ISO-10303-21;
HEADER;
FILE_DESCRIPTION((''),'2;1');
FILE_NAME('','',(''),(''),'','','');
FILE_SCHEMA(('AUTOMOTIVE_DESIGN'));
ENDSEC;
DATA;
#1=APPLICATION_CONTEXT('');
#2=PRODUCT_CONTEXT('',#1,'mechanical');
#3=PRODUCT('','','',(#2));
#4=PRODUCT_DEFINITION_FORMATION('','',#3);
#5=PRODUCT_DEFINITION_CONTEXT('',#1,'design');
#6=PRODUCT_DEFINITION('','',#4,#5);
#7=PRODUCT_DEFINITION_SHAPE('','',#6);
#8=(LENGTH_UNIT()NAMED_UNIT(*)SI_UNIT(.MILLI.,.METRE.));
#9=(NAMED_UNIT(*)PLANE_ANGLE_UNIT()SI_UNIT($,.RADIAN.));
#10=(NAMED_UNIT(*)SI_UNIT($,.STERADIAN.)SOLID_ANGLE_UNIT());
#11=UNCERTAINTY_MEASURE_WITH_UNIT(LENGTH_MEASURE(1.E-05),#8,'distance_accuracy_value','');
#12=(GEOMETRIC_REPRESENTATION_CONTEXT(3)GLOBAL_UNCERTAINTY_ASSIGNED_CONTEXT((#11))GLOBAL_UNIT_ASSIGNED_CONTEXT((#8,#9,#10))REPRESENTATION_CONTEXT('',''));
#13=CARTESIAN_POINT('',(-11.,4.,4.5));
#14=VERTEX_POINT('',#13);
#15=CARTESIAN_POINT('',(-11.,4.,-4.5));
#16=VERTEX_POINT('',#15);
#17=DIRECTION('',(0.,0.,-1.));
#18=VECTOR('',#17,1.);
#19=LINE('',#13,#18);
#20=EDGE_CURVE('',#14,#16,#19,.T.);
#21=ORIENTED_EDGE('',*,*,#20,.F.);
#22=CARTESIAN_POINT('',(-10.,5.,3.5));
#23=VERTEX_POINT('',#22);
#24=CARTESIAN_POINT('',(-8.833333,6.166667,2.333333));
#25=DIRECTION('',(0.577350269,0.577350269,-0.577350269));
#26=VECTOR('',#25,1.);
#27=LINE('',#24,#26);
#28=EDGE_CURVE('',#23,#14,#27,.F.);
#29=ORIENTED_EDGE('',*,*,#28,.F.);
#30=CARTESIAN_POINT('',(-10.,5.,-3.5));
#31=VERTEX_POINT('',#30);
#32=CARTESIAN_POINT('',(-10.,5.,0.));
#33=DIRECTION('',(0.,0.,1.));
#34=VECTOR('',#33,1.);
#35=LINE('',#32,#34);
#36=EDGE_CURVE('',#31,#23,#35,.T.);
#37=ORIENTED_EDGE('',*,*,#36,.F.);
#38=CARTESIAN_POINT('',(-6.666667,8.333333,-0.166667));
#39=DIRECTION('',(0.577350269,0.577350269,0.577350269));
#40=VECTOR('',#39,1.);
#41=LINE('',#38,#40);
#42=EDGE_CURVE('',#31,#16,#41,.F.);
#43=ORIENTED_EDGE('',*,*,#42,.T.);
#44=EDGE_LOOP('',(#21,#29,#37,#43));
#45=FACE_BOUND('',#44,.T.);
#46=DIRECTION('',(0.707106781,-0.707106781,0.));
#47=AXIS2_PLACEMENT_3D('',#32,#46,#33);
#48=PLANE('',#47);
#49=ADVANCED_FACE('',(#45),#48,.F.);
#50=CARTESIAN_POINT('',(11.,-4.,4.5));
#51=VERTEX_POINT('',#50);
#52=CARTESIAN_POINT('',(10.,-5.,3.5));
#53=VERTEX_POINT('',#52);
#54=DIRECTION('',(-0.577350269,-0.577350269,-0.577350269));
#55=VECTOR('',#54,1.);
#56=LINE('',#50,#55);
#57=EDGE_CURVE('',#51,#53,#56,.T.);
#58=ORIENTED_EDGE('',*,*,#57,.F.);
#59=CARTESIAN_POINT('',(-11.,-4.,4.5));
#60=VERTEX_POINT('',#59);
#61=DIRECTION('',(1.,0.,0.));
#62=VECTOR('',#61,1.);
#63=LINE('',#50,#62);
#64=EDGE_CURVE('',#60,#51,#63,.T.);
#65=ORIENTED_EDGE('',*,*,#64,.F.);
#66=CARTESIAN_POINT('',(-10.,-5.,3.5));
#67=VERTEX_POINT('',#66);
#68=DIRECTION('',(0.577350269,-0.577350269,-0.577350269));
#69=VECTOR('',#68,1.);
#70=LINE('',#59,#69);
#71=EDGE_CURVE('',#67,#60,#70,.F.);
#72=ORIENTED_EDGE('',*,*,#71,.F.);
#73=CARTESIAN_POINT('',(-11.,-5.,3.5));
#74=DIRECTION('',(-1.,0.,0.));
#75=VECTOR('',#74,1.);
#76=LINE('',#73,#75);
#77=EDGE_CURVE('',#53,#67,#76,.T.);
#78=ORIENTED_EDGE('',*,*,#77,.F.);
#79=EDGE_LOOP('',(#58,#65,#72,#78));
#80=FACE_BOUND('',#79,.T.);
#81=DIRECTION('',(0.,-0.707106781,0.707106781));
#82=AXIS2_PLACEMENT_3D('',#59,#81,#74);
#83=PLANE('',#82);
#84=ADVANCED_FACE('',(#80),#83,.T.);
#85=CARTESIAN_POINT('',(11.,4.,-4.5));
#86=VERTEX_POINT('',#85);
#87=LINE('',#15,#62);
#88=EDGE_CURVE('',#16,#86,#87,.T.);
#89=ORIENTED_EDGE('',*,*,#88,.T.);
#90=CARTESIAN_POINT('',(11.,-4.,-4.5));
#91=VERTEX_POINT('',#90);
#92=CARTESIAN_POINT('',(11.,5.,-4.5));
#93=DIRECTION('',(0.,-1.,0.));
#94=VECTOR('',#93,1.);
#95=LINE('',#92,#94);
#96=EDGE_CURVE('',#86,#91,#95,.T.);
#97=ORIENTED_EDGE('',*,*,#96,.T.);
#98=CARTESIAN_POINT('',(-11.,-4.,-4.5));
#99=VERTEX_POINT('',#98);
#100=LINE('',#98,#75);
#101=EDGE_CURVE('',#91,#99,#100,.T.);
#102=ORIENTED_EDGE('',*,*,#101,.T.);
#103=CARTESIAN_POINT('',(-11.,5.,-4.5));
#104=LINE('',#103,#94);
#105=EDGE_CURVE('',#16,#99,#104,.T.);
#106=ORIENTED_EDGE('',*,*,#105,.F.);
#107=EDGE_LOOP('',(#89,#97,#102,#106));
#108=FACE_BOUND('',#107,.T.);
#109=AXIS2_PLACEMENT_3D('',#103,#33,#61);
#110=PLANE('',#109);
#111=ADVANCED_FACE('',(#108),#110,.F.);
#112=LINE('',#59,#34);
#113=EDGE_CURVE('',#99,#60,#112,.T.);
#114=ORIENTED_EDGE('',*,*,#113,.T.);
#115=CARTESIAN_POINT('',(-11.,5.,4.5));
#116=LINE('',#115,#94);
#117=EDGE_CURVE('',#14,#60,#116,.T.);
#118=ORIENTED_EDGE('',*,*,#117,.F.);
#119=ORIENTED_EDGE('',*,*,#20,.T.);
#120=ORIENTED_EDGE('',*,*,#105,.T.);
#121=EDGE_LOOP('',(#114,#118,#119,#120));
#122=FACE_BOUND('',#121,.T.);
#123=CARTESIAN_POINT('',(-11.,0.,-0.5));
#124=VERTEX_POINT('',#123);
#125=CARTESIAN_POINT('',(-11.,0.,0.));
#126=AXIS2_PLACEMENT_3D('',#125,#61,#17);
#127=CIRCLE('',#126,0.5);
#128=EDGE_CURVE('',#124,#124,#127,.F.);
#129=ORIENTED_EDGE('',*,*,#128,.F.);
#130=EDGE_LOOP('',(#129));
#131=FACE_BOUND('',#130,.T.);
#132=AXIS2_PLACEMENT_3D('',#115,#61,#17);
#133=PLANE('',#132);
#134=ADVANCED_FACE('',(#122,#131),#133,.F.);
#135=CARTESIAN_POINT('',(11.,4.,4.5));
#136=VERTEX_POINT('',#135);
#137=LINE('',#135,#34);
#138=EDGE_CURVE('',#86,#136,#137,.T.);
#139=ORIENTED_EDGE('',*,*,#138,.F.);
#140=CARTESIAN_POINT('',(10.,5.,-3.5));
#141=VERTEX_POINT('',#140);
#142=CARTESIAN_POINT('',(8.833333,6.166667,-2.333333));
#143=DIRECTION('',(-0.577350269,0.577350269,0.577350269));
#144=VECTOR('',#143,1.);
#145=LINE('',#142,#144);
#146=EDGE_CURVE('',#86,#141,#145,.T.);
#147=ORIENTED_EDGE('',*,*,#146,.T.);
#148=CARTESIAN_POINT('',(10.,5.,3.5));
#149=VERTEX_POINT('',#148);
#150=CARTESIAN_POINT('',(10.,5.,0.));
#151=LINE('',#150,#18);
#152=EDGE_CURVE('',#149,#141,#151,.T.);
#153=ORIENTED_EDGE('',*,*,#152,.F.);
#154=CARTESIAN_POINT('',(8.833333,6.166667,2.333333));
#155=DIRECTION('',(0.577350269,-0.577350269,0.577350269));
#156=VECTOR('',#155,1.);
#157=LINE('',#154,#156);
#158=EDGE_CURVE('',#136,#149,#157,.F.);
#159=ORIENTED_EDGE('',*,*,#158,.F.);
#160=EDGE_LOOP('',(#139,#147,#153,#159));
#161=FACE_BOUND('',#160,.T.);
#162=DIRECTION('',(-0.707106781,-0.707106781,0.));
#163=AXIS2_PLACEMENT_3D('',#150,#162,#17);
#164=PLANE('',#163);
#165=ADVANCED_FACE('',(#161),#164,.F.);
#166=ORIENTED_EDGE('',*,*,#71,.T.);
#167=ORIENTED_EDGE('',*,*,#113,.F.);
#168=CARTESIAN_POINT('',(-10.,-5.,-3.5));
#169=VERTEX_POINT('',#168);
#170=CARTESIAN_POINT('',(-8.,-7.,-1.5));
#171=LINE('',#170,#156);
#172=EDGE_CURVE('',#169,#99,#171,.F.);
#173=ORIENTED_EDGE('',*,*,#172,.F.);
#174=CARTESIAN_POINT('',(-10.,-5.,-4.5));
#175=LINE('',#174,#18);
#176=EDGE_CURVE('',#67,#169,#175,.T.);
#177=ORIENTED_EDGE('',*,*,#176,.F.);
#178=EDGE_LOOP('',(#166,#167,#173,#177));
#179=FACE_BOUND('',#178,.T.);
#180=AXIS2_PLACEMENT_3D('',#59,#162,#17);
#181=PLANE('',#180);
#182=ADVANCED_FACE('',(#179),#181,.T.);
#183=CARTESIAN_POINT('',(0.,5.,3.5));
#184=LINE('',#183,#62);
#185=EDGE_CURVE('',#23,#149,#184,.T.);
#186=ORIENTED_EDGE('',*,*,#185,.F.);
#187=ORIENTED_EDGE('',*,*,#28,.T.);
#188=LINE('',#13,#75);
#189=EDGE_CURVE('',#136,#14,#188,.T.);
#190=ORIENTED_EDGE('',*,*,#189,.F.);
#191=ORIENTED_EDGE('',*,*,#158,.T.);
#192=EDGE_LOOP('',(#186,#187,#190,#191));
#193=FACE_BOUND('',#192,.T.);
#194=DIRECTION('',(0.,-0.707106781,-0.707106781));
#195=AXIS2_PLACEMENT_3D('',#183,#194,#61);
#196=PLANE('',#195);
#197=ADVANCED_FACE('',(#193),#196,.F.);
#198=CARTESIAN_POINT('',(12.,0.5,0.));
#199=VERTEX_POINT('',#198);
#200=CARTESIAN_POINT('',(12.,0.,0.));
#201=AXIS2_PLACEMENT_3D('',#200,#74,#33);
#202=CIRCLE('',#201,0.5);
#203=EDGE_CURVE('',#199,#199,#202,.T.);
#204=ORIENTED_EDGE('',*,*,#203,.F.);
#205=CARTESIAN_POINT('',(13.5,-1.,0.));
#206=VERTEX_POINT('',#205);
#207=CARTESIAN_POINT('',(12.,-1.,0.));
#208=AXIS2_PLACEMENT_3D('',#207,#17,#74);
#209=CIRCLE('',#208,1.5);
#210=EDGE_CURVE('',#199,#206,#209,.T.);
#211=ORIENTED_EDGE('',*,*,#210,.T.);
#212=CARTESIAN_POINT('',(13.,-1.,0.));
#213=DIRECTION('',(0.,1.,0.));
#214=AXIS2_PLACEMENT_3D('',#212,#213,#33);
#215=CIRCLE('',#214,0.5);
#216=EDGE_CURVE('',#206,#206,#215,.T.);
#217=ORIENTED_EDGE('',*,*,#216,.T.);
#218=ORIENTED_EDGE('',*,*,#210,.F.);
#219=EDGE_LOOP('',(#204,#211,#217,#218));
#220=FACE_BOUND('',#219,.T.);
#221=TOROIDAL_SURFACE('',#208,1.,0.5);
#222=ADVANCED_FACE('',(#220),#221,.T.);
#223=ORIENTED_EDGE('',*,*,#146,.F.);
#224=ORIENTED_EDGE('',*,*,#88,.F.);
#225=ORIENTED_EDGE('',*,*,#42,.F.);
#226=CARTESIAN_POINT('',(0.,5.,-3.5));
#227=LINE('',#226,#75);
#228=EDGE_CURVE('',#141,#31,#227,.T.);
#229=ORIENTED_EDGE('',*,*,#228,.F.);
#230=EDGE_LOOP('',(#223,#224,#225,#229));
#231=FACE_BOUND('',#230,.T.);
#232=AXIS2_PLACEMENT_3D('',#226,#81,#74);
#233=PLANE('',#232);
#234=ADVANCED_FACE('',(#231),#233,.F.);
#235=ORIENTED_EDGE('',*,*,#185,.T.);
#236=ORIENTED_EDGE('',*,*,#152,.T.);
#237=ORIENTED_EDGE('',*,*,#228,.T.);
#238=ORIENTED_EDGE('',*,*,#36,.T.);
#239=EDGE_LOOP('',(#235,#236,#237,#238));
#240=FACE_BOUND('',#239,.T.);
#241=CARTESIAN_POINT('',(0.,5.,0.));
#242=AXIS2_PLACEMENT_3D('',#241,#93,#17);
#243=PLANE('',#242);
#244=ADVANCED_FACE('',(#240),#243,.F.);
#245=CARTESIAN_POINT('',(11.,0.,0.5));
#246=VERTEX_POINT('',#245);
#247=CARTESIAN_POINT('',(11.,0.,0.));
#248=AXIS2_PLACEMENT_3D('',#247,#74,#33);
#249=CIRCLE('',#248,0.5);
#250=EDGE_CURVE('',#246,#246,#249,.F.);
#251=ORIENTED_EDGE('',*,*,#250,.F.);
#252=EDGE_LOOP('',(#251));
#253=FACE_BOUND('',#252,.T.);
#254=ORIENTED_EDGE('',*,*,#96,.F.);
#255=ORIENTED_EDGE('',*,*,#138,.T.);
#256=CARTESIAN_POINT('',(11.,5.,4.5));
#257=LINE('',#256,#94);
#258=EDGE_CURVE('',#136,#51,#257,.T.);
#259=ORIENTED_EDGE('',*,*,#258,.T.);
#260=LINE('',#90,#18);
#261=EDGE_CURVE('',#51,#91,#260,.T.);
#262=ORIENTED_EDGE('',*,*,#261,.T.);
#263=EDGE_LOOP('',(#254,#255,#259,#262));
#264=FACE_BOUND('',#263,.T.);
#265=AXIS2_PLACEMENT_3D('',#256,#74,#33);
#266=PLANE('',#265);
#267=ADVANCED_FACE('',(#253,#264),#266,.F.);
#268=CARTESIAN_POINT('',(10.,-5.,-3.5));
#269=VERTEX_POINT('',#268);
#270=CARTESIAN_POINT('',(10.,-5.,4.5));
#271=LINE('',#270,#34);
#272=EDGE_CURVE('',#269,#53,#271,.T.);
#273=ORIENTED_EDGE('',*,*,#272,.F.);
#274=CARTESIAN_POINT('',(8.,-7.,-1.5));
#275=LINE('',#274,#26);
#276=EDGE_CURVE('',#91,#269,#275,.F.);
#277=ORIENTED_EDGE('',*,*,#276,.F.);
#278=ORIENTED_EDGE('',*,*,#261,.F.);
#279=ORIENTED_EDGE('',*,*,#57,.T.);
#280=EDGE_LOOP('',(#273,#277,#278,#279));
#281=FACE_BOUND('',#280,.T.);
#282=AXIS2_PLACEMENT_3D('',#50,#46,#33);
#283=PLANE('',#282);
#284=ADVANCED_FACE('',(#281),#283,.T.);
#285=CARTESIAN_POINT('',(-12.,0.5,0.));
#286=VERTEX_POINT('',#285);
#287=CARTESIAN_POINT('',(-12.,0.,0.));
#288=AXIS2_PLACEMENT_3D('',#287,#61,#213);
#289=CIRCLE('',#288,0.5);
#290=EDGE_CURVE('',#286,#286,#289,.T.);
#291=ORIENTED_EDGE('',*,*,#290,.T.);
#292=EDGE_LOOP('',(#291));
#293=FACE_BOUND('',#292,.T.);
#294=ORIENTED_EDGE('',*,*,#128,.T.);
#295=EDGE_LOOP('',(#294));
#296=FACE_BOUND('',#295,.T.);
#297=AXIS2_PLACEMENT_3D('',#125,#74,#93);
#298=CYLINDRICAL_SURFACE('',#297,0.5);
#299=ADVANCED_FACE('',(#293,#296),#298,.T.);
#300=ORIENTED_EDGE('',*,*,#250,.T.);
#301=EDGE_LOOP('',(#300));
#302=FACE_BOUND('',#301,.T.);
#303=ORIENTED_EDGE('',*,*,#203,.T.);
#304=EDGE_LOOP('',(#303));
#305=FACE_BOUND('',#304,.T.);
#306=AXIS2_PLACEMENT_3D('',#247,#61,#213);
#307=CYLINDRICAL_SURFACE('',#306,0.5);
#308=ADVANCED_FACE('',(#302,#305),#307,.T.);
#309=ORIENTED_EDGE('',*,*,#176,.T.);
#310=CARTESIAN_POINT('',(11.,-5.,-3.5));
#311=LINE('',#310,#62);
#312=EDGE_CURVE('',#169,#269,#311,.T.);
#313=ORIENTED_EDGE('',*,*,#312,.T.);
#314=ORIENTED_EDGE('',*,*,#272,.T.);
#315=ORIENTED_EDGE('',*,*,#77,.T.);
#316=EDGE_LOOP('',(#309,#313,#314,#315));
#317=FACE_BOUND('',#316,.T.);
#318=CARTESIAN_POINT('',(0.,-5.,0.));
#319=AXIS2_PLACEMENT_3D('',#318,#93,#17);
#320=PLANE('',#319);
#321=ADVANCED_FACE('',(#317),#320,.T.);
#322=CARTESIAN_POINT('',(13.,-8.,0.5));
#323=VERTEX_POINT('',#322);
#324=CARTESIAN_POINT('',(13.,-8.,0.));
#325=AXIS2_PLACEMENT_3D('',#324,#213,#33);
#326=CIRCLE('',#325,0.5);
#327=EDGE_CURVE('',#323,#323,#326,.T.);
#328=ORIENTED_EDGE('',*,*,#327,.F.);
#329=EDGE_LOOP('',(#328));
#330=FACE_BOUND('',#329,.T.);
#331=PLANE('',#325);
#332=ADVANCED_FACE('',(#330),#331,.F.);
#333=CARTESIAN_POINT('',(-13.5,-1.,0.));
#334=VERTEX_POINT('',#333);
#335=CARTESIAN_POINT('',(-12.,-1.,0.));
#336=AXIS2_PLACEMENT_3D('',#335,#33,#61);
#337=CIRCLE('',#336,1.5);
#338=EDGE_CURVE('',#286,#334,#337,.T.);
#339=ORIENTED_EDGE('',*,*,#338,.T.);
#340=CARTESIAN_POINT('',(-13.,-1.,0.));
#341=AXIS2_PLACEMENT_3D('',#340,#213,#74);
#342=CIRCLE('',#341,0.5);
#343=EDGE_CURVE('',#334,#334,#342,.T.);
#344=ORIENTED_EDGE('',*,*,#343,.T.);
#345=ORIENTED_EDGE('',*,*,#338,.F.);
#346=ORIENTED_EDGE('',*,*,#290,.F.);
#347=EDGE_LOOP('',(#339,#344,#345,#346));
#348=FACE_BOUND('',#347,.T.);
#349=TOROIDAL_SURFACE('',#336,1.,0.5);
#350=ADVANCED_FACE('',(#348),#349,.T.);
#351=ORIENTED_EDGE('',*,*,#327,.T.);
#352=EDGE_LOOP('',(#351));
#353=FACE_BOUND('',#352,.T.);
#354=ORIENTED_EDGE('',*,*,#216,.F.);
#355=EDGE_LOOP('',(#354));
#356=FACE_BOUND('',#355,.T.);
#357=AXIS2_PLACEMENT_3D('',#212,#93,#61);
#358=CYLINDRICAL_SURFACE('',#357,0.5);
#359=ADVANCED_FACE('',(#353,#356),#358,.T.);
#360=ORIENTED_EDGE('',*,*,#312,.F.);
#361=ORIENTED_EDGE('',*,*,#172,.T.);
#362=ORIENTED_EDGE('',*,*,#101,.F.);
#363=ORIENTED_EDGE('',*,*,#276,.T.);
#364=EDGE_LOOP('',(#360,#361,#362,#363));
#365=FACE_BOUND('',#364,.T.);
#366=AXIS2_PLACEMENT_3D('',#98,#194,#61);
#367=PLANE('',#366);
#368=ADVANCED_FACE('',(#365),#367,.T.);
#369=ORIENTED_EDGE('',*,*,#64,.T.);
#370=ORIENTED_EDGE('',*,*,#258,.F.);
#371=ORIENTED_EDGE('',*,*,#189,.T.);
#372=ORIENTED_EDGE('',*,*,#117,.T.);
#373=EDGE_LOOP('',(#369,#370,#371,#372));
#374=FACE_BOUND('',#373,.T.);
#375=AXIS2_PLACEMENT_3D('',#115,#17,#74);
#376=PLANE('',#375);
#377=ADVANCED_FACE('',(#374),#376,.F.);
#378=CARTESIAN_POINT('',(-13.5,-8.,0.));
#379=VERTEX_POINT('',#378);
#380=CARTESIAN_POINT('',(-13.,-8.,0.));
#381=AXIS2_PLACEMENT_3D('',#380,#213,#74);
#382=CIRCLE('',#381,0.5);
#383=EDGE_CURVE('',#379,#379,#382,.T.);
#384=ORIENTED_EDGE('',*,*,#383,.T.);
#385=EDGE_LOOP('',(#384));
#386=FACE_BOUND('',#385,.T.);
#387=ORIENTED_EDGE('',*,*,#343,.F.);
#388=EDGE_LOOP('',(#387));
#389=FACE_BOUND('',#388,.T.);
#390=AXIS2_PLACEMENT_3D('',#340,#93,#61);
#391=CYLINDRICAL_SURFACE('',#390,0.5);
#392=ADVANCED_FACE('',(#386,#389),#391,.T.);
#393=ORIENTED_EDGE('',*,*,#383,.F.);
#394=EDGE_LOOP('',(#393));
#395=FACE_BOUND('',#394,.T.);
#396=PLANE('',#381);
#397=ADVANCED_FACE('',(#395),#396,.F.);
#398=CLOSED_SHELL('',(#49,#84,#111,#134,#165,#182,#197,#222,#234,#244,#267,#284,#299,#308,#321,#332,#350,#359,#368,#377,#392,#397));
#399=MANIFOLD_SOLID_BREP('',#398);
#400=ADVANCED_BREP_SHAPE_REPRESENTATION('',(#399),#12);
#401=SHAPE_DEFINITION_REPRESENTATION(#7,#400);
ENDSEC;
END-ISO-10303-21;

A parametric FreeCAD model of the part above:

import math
import FreeCAD as App
import Part
import Sketcher
Q = App.Units.Quantity


def edges_at(feature, points):
    """Names of the edges that pass closest to the given points."""
    edges = feature.Shape.Edges
    near = lambda p: min(range(len(edges)), key=lambda i: edges[i].distToShape(Part.Vertex(*p))[0])
    return sorted({f"Edge{near(p) + 1}" for p in points})


def add_polygon(sketch, points):
    """Adds a closed chain of lines whose ends are joined by coincident constraints."""
    first, n = sketch.GeometryCount, len(points)
    for a, b in zip(points, points[1:] + points[:1]):
        sketch.addGeometry(Part.LineSegment(App.Vector(*a, 0), App.Vector(*b, 0)), False)
    for i in range(n):
        sketch.addConstraint(Sketcher.Constraint("Coincident", first + i, 2, first + (i + 1) % n, 1))

doc = App.newDocument("Part")
body = doc.addObject("PartDesign::Body", "Body")

# Sketch on XZ plane
sketch1 = body.newObject("Sketcher::SketchObject", "Sketch")
sketch1.AttachmentSupport = (doc.getObject("XZ_Plane"), [""])
sketch1.MapMode = "FlatFace"
add_polygon(sketch1, [(-11, -4.5), (-11, 4.5), (11, 4.5), (11, -4.5)])  # lines 0-3
sketch1.addConstraint([
    Sketcher.Constraint("Vertical", 0),
    Sketcher.Constraint("Horizontal", 1),
    Sketcher.Constraint("Vertical", 2),
    Sketcher.Constraint("Horizontal", 3),
    Sketcher.Constraint("Symmetric", 0, 2, 2, 2, -1, 1),
    Sketcher.Constraint("DistanceX", 1, 1, 1, 2, Q("22 mm")),
    Sketcher.Constraint("DistanceY", 0, 1, 0, 2, Q("9 mm")),
])
pad1 = body.newObject("PartDesign::Pad", "Pad")
pad1.Profile = sketch1
pad1.Length = 10
pad1.Midplane = True
doc.recompute()

chamfer = body.newObject("PartDesign::Chamfer", "Chamfer")
chamfer.Base = (pad1, edges_at(pad1, [
    (-11, 5, 0),
    (0, 5, 4.5),
    (11, 5, 0),
    (0, -5, 4.5),
    (-11, -5, 0),
    (0, -5, -4.5),
    (11, -5, 0),
    (0, 5, -4.5),
]))
chamfer.Size = 1

# Sketch on YZ plane
sketch2 = body.newObject("Sketcher::SketchObject", "Sketch001")
sketch2.AttachmentSupport = (doc.getObject("YZ_Plane"), [""])
sketch2.MapMode = "FlatFace"
sketch2.AttachmentOffset = App.Placement(App.Vector(0, 0, 11), App.Rotation())
sketch2.addGeometry(Part.Circle(App.Vector(0, 0, 0), App.Vector(0, 0, 1), 0.5), False)
sketch2.addConstraint([
    Sketcher.Constraint("Coincident", 0, 3, -1, 1),
    Sketcher.Constraint("Diameter", 0, Q("1 mm")),
])

# Sketch on XY plane
sketch3 = body.newObject("Sketcher::SketchObject", "Sketch002")
sketch3.AttachmentSupport = (doc.getObject("XY_Plane"), [""])
sketch3.MapMode = "FlatFace"
sketch3.addGeometry([
    Part.LineSegment(App.Vector(11, 0, 0), App.Vector(12, 0, 0)),
    Part.ArcOfCircle(Part.Circle(App.Vector(12, -1, 0), App.Vector(0, 0, 1), 1), math.radians(0), math.radians(90)),
    Part.LineSegment(App.Vector(13, -1, 0), App.Vector(13, -8, 0)),
], False)
sketch3.addConstraint([
    Sketcher.Constraint("Tangent", 0, 2, 1, 2),
    Sketcher.Constraint("Tangent", 1, 1, 2, 1),
    Sketcher.Constraint("Horizontal", 0),
    Sketcher.Constraint("Vertical", 2),
    Sketcher.Constraint("PointOnObject", 0, 1, -1),
    Sketcher.Constraint("Radius", 1, Q("1 mm")),
    Sketcher.Constraint("DistanceX", 0, 1, 0, 2, Q("1 mm")),
    Sketcher.Constraint("DistanceY", 2, 2, 2, 1, Q("7 mm")),
    Sketcher.Constraint("DistanceX", -1, 1, 1, 3, Q("12 mm")),
])
doc.recompute()

additivepipe = body.newObject("PartDesign::AdditivePipe", "AdditivePipe")
additivepipe.Profile = sketch2
additivepipe.Spine = (sketch3, ["Edge1", "Edge2", "Edge3"])

# Sketch on YZ plane
sketch4 = body.newObject("Sketcher::SketchObject", "Sketch003")
sketch4.AttachmentSupport = (doc.getObject("YZ_Plane"), [""])
sketch4.MapMode = "FlatFace"
sketch4.AttachmentOffset = App.Placement(App.Vector(0, 0, -11), App.Rotation())
sketch4.addGeometry(Part.Circle(App.Vector(0, 0, 0), App.Vector(0, 0, 1), 0.5), False)
sketch4.addConstraint([
    Sketcher.Constraint("Coincident", 0, 3, -1, 1),
    Sketcher.Constraint("Diameter", 0, Q("1 mm")),
])

# Sketch on XY plane
sketch5 = body.newObject("Sketcher::SketchObject", "Sketch004")
sketch5.AttachmentSupport = (doc.getObject("XY_Plane"), [""])
sketch5.MapMode = "FlatFace"
sketch5.addGeometry([
    Part.LineSegment(App.Vector(-11, 0, 0), App.Vector(-12, 0, 0)),
    Part.ArcOfCircle(Part.Circle(App.Vector(-12, -1, 0), App.Vector(0, 0, 1), 1), math.radians(90), math.radians(180)),
    Part.LineSegment(App.Vector(-13, -1, 0), App.Vector(-13, -8, 0)),
], False)
sketch5.addConstraint([
    Sketcher.Constraint("Tangent", 0, 2, 1, 1),
    Sketcher.Constraint("Tangent", 1, 2, 2, 1),
    Sketcher.Constraint("Horizontal", 0),
    Sketcher.Constraint("Vertical", 2),
    Sketcher.Constraint("PointOnObject", 0, 1, -1),
    Sketcher.Constraint("Radius", 1, Q("1 mm")),
    Sketcher.Constraint("DistanceX", 0, 2, 0, 1, Q("1 mm")),
    Sketcher.Constraint("DistanceY", 2, 2, 2, 1, Q("7 mm")),
    Sketcher.Constraint("DistanceX", 1, 3, -1, 1, Q("12 mm")),
])
doc.recompute()

additivepipe2 = body.newObject("PartDesign::AdditivePipe", "AdditivePipe001")
additivepipe2.Profile = sketch4
additivepipe2.Spine = (sketch5, ["Edge1", "Edge2", "Edge3"])

doc.recompute()
